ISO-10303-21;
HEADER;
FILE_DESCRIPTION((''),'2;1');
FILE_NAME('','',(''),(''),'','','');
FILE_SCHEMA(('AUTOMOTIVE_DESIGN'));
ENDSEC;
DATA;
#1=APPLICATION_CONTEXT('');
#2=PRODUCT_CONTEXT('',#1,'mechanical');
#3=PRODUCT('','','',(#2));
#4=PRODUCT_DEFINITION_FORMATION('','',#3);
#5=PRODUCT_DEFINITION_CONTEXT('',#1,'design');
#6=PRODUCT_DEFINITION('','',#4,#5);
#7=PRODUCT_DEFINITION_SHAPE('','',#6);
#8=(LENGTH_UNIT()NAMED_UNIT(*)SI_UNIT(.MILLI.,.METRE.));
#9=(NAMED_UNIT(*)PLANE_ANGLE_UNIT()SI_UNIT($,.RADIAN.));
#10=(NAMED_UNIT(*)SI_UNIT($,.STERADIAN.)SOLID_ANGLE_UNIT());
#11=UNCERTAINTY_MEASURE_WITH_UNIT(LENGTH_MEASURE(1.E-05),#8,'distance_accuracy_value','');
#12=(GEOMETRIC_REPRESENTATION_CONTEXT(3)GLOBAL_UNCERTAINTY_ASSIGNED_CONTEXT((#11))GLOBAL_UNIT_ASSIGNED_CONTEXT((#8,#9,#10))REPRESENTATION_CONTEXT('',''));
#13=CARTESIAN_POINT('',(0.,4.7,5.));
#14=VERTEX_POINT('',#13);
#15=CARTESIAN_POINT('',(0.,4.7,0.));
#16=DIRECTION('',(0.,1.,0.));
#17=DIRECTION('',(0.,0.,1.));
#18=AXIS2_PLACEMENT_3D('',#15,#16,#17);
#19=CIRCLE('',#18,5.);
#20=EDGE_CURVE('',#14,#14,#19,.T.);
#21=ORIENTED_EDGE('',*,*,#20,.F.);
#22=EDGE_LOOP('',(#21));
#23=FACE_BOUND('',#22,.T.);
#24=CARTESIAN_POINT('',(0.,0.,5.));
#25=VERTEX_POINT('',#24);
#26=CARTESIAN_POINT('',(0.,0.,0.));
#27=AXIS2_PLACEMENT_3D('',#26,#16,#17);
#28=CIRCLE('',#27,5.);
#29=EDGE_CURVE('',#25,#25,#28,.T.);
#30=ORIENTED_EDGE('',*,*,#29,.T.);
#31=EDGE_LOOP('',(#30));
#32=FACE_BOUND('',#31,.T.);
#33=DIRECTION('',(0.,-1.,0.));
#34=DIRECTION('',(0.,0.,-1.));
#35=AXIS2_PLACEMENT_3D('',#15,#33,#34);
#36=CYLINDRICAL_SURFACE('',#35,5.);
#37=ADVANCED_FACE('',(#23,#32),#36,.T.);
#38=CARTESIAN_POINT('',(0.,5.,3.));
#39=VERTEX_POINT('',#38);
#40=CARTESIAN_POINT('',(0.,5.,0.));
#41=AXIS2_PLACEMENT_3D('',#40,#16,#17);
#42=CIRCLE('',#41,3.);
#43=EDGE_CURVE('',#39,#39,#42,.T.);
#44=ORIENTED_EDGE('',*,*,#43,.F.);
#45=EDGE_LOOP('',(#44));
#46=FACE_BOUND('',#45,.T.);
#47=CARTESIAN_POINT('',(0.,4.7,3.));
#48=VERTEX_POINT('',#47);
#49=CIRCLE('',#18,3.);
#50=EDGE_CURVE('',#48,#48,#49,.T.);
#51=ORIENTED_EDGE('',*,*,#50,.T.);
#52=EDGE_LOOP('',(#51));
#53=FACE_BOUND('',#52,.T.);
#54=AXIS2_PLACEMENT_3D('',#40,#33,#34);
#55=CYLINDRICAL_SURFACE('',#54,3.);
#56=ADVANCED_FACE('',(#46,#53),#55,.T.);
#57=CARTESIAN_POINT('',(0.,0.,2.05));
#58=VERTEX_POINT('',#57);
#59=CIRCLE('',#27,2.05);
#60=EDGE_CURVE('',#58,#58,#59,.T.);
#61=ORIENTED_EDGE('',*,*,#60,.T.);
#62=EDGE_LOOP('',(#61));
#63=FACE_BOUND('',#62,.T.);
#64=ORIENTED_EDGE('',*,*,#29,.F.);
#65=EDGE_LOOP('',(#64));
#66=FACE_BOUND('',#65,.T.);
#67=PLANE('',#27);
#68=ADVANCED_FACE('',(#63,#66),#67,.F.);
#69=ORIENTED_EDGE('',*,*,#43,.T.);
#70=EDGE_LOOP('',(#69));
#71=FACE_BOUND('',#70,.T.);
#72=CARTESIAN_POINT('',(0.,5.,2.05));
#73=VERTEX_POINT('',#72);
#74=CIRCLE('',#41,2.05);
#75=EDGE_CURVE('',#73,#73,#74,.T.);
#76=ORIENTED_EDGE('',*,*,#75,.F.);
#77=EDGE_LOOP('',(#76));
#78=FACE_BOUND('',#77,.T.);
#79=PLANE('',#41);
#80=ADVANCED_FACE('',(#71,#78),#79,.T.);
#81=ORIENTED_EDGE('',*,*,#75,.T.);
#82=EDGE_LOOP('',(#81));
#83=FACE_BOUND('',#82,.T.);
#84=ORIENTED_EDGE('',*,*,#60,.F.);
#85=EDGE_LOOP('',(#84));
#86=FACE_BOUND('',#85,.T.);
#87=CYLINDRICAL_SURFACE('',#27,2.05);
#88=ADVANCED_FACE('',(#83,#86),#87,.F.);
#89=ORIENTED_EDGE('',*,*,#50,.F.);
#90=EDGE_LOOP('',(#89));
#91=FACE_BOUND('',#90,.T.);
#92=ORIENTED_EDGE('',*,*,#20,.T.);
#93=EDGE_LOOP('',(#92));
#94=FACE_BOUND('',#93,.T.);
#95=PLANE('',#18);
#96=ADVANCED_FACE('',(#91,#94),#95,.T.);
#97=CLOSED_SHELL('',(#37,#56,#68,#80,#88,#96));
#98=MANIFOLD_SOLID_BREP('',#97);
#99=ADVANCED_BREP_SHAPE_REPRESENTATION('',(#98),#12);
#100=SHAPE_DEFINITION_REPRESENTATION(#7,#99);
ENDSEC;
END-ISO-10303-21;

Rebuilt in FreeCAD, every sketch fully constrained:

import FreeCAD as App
import Part
import Sketcher

doc = App.newDocument("Part")
body = doc.addObject("PartDesign::Body", "Body")

# Sketch on XZ plane
sketch1 = body.newObject("Sketcher::SketchObject", "Sketch")
sketch1.AttachmentSupport = (doc.getObject("XZ_Plane"), [""])
sketch1.MapMode = "FlatFace"
sketch1.addGeometry(Part.Circle(App.Vector(0, 0, 0), App.Vector(0, 0, 1), 5), False)
sketch1.addConstraint(Sketcher.Constraint("Coincident", 0, 3, -1, 1))
sketch1.addConstraint(Sketcher.Constraint("Diameter", 0, 10.0))
pad1 = body.newObject("PartDesign::Pad", "Pad")
pad1.Profile = sketch1
pad1.Length = 4.7
pad1.Reversed = True

# Sketch on XZ plane
sketch2 = body.newObject("Sketcher::SketchObject", "Sketch001")
sketch2.AttachmentSupport = (doc.getObject("XZ_Plane"), [""])
sketch2.MapMode = "FlatFace"
sketch2.AttachmentOffset = App.Placement(App.Vector(0, 0, -4.7), App.Rotation())
sketch2.addGeometry(Part.Circle(App.Vector(0, 0, 0), App.Vector(0, 0, 1), 3), False)
sketch2.addConstraint(Sketcher.Constraint("Coincident", 0, 3, -1, 1))
sketch2.addConstraint(Sketcher.Constraint("Diameter", 0, 6.0))
pad2 = body.newObject("PartDesign::Pad", "Pad001")
pad2.Profile = sketch2
pad2.Length = 0.3
pad2.Reversed = True

# Sketch on XZ plane
sketch3 = body.newObject("Sketcher::SketchObject", "Sketch002")
sketch3.AttachmentSupport = (doc.getObject("XZ_Plane"), [""])
sketch3.MapMode = "FlatFace"
sketch3.AttachmentOffset = App.Placement(App.Vector(0, 0, -5), App.Rotation())
sketch3.addGeometry(Part.Circle(App.Vector(0, 0, 0), App.Vector(0, 0, 1), 2.05), False)
sketch3.addConstraint(Sketcher.Constraint("Coincident", 0, 3, -1, 1))
sketch3.addConstraint(Sketcher.Constraint("Diameter", 0, 4.1))
pocket1 = body.newObject("PartDesign::Pocket", "Pocket")
pocket1.Profile = sketch3
pocket1.Type = "ThroughAll"
pocket1.Reversed = True

doc.recompute()
